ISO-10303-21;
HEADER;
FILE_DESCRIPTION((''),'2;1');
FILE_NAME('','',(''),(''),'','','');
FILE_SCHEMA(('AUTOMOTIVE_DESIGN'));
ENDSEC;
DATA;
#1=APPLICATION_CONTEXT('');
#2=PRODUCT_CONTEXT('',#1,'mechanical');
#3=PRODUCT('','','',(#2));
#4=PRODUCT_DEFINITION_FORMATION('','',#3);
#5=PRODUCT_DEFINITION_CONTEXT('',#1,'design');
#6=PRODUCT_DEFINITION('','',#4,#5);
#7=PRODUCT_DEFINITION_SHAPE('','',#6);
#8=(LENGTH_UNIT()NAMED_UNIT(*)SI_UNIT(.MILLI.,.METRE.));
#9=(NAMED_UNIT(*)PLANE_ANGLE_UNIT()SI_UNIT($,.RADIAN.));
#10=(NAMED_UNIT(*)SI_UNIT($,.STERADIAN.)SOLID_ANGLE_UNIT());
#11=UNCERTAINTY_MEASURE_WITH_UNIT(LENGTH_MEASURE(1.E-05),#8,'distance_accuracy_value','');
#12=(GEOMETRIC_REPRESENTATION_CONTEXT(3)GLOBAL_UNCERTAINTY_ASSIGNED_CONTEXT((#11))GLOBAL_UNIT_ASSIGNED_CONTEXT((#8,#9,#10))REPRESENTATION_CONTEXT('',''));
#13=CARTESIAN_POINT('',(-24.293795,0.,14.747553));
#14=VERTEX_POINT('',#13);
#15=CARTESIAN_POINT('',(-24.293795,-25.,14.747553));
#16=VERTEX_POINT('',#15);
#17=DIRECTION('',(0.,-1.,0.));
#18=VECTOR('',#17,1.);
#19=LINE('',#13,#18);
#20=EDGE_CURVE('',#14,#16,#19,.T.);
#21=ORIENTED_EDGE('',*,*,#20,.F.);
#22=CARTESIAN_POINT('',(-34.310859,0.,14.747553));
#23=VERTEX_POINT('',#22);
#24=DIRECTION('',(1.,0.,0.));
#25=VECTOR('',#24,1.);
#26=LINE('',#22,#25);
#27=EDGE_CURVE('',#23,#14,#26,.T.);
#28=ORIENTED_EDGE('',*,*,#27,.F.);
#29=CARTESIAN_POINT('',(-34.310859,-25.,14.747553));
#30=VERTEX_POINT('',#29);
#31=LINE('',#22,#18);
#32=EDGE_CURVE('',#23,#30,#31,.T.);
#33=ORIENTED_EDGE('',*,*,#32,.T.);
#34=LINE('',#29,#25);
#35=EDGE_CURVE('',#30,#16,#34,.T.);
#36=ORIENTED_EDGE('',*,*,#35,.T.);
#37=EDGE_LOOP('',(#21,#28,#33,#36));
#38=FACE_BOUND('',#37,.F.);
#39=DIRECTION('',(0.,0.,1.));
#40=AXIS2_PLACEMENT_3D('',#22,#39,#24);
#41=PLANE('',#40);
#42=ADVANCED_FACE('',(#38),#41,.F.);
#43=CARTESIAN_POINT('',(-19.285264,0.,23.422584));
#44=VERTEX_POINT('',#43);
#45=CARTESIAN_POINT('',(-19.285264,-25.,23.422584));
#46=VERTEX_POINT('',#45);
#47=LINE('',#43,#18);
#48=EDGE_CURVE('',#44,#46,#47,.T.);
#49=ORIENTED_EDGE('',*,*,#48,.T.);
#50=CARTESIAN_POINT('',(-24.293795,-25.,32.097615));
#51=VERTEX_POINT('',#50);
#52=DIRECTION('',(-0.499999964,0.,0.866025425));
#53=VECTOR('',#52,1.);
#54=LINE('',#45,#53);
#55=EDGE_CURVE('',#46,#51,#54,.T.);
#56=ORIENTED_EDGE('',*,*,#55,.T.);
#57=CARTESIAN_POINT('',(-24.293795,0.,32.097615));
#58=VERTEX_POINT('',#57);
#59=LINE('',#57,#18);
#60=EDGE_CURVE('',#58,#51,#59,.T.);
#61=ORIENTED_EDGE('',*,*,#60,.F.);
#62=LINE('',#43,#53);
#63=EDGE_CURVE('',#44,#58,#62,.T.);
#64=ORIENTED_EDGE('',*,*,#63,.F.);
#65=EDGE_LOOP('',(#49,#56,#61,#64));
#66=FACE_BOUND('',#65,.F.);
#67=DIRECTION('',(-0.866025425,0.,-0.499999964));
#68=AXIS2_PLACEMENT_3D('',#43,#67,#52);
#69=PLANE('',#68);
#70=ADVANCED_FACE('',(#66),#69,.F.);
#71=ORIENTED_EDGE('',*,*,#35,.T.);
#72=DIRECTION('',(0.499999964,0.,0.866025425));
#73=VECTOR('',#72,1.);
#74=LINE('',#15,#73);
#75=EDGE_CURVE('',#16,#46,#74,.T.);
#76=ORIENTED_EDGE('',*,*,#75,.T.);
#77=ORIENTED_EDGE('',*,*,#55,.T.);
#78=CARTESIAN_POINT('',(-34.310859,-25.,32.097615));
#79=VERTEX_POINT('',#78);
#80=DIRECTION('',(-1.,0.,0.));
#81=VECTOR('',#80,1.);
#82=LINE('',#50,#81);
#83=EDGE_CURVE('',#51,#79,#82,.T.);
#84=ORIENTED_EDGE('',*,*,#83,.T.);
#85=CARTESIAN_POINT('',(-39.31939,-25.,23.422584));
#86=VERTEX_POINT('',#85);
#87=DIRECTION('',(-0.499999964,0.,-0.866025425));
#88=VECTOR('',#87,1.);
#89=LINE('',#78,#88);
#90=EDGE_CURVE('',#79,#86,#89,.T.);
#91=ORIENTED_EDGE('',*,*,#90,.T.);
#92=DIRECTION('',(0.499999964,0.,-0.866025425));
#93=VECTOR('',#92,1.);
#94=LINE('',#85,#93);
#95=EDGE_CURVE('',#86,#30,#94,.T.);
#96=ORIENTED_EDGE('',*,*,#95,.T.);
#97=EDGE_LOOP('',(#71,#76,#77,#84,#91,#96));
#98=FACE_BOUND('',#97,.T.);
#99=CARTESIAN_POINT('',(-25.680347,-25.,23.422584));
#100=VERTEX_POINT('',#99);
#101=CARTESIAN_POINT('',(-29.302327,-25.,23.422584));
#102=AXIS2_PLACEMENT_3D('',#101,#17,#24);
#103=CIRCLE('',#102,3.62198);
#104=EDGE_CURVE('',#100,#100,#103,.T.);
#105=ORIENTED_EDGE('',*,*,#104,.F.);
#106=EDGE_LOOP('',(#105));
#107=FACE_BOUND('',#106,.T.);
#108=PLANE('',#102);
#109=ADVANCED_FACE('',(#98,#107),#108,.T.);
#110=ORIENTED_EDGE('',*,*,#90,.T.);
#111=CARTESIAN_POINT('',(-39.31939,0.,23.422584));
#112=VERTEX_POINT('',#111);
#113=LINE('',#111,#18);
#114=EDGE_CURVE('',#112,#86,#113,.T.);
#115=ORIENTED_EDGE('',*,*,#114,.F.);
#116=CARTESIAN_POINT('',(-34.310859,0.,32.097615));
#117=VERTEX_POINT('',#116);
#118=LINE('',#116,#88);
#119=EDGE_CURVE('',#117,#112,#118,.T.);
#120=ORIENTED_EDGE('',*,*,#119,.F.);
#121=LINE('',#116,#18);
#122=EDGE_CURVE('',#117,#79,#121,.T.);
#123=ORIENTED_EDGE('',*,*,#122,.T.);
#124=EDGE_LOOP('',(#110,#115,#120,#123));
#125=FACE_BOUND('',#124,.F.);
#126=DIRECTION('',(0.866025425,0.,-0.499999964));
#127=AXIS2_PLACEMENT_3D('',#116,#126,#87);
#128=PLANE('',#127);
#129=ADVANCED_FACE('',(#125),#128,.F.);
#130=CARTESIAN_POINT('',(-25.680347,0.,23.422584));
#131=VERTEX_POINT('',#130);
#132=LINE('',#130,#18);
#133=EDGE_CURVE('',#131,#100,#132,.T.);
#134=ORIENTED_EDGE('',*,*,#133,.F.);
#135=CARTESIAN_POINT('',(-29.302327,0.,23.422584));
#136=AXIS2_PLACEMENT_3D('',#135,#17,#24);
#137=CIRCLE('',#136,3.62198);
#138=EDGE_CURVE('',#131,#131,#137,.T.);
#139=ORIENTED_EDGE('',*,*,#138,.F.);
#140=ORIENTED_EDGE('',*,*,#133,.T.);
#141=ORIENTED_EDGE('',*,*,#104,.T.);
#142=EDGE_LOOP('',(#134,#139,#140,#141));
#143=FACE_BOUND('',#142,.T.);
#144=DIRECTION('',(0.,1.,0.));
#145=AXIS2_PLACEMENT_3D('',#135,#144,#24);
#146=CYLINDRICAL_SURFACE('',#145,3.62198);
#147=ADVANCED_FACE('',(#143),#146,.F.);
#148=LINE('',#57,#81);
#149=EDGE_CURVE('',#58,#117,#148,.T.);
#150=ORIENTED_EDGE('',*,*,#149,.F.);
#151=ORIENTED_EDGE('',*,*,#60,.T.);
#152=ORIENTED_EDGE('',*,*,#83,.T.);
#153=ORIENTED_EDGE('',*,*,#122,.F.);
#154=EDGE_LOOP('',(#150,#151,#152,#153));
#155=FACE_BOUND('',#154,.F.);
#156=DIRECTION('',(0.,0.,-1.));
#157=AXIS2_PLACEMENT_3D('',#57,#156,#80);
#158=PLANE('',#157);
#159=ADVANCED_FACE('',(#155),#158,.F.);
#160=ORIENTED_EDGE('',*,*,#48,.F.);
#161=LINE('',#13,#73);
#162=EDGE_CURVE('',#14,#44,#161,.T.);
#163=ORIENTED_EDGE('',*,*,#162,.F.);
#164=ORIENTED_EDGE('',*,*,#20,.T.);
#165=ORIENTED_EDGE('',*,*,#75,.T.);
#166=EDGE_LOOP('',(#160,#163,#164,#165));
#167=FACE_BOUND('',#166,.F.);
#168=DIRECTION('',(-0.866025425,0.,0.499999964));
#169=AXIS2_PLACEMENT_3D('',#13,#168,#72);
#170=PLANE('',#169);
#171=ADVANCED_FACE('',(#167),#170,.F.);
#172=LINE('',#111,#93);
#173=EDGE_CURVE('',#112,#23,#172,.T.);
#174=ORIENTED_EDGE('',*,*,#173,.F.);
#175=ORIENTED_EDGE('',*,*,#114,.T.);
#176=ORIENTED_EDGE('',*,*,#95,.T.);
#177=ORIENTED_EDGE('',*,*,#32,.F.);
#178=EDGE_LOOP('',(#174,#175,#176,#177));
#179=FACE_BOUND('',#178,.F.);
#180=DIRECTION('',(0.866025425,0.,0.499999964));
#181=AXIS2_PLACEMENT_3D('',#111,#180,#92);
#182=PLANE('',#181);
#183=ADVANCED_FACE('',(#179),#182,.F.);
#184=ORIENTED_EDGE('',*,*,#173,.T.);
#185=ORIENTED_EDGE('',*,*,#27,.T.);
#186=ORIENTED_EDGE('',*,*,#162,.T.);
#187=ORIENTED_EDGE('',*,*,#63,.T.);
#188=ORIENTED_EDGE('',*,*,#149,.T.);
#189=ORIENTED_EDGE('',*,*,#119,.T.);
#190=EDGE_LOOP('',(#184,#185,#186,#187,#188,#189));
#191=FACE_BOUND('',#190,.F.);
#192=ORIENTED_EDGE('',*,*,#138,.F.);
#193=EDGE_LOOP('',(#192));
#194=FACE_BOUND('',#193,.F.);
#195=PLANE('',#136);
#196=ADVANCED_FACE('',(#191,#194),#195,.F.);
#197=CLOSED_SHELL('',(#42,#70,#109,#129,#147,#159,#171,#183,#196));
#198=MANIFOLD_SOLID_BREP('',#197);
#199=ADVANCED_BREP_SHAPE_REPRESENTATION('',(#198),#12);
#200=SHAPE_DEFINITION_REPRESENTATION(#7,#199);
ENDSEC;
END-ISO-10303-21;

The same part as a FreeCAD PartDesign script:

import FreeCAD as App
import Part
import Sketcher
Q = App.Units.Quantity

doc = App.newDocument("Part")
body = doc.addObject("PartDesign::Body", "Body")

# Sketch on XZ plane
sketch1 = doc.addObject("Sketcher::SketchObject", "Sketch")
body.addObject(sketch1)
sketch1.AttachmentSupport = (doc.XZ_Plane, [""])
sketch1.MapMode = "FlatFace"
sketch1.addGeometry([
    Part.LineSegment(App.Vector(-24, 32, 0), App.Vector(-34, 32, 0)),  # 0
    Part.LineSegment(App.Vector(-34, 32, 0), App.Vector(-39, 23, 0)),  # 1
    Part.LineSegment(App.Vector(-39, 23, 0), App.Vector(-34, 15, 0)),  # 2
    Part.LineSegment(App.Vector(-34, 15, 0), App.Vector(-24, 15, 0)),  # 3
    Part.LineSegment(App.Vector(-24, 15, 0), App.Vector(-19, 23, 0)),  # 4
    Part.LineSegment(App.Vector(-19, 23, 0), App.Vector(-24, 32, 0)),  # 5
], False)
sketch1.addConstraint([
    Sketcher.Constraint("Coincident", 0, 2, 1, 1),
    Sketcher.Constraint("Coincident", 1, 2, 2, 1),
    Sketcher.Constraint("Coincident", 2, 2, 3, 1),
    Sketcher.Constraint("Coincident", 3, 2, 4, 1),
    Sketcher.Constraint("Coincident", 4, 2, 5, 1),
    Sketcher.Constraint("Coincident", 5, 2, 0, 1),
    Sketcher.Constraint("Horizontal", 0),
    Sketcher.Constraint("Horizontal", 3),
    Sketcher.Constraint("Parallel", 1, 4),
    Sketcher.Constraint("Parallel", 2, 5),
    Sketcher.Constraint("Horizontal", 1, 2, 4, 2),
    Sketcher.Constraint("Vertical", 0, 2, 2, 2),
    Sketcher.Constraint("Vertical", 3, 2, 5, 2),
    Sketcher.Constraint("Angle", 1, Q("-119.999998 deg")),
    Sketcher.Constraint("DistanceX", 0, 2, 0, 1, 10.017064),
    Sketcher.Constraint("DistanceX", 0, 2, -1, 1, 34.310859),
    Sketcher.Constraint("DistanceX", 1, 2, -1, 1, 39.31939),
    Sketcher.Constraint("DistanceY", -1, 1, 0, 2, 32.097615),
])
pad1 = doc.addObject("PartDesign::Pad", "Pad")
body.addObject(pad1)
pad1.Profile = sketch1
pad1.Length = 25

# Sketch on XZ plane
sketch2 = doc.addObject("Sketcher::SketchObject", "Sketch001")
body.addObject(sketch2)
sketch2.AttachmentSupport = (doc.XZ_Plane, [""])
sketch2.MapMode = "FlatFace"
sketch2.addGeometry(Part.Circle(App.Vector(-29.3, 23.4, 0), App.Vector(0, 0, 1), 3.6), False)
sketch2.addConstraint([
    Sketcher.Constraint("Diameter", 0, 7.24396),
    Sketcher.Constraint("DistanceX", 0, 3, -1, 1, 29.302327),
    Sketcher.Constraint("DistanceY", -1, 1, 0, 3, 23.422584),
])
pocket1 = doc.addObject("PartDesign::Pocket", "Pocket")
body.addObject(pocket1)
pocket1.Profile = sketch2
pocket1.Length = 25
pocket1.Reversed = True

doc.recompute()
